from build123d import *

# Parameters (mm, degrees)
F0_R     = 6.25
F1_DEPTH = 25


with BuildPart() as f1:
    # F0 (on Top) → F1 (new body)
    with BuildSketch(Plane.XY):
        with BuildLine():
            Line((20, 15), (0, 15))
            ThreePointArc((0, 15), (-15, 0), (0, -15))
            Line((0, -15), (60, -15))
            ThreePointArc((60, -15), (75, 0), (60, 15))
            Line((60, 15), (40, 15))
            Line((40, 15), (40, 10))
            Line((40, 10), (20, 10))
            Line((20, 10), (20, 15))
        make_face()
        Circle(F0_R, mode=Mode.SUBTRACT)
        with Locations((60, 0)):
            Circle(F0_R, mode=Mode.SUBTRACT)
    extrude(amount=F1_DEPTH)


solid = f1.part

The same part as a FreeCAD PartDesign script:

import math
import FreeCAD as App
import Part
import Sketcher

V = App.Vector
Q = App.Units.Quantity

doc = App.newDocument("Part")
params = doc.addObject("Spreadsheet::Sheet", "Params")
for row, (alias, value) in enumerate([
    ("sketch1_radius", "15 mm"),
    ("sketch1_diameter", "12.5 mm"),
    ("sketch1_width", "20 mm"),
    ("sketch1_height", "5 mm"),
    ("pad1_length", "25 mm"),
], start=1):
    params.set(f"A{row}", alias)
    params.set(f"B{row}", "=" + value)
    params.setAlias(f"B{row}", alias)

body = doc.addObject("PartDesign::Body", "Body")

sketch1 = body.newObject("Sketcher::SketchObject", "Sketch")
sketch1.AttachmentSupport = (doc.getObject("XY_Plane"), [""])
sketch1.MapMode = "FlatFace"
sketch1.addGeometry([
    Part.LineSegment(V(20, 15, 0), V(0, 15, 0)),
    Part.ArcOfCircle(Part.Circle(V(0, 0, 0), V(0, 0, 1), 15), math.radians(90), math.radians(270)),
    Part.LineSegment(V(0, -15, 0), V(60, -15, 0)),
    Part.ArcOfCircle(Part.Circle(V(60, 0, 0), V(0, 0, 1), 15), math.radians(-90), math.radians(90)),
    Part.LineSegment(V(60, 15, 0), V(40, 15, 0)),
    Part.LineSegment(V(40, 15, 0), V(40, 10, 0)),
    Part.LineSegment(V(40, 10, 0), V(20, 10, 0)),
    Part.LineSegment(V(20, 10, 0), V(20, 15, 0)),
    Part.Circle(V(0, 0, 0), V(0, 0, 1), 6),
    Part.Circle(V(60, 0, 0), V(0, 0, 1), 6),
], False)
sketch1.addConstraint([
    Sketcher.Constraint("Tangent", 0, 2, 1, 1),
    Sketcher.Constraint("Tangent", 1, 2, 2, 1),
    Sketcher.Constraint("Tangent", 2, 2, 3, 1),
    Sketcher.Constraint("Tangent", 3, 2, 4, 1),
    Sketcher.Constraint("Coincident", 4, 2, 5, 1),
    Sketcher.Constraint("Coincident", 5, 2, 6, 1),
    Sketcher.Constraint("Coincident", 6, 2, 7, 1),
    Sketcher.Constraint("Coincident", 7, 2, 0, 1),
    Sketcher.Constraint("Horizontal", 0),
    Sketcher.Constraint("Horizontal", 2),
    Sketcher.Constraint("Horizontal", 4),
    Sketcher.Constraint("Vertical", 5),
    Sketcher.Constraint("Horizontal", 6),
    Sketcher.Constraint("Vertical", 7),
    Sketcher.Constraint("Coincident", 1, 3, -1, 1),
    Sketcher.Constraint("Coincident", 8, 3, -1, 1),
    Sketcher.Constraint("Coincident", 9, 3, 3, 3),
    Sketcher.Constraint("Equal", 1, 3),
    Sketcher.Constraint("Equal", 8, 9),
    Sketcher.Constraint("Equal", 0, 4),
    Sketcher.Constraint("Equal", 4, 6),
    Sketcher.Constraint("Radius", 1, Q("15 mm")),
    Sketcher.Constraint("Diameter", 8, Q("12.5 mm")),
    Sketcher.Constraint("DistanceX", 0, 2, 0, 1, Q("20 mm")),
    Sketcher.Constraint("DistanceY", 5, 2, 5, 1, Q("5 mm")),
])
sketch1.setExpression("Constraints[21]", "Params.sketch1_radius")
sketch1.setExpression("Constraints[22]", "Params.sketch1_diameter")
sketch1.setExpression("Constraints[23]", "Params.sketch1_width")
sketch1.setExpression("Constraints[24]", "Params.sketch1_height")
pad1 = body.newObject("PartDesign::Pad", "Pad")
pad1.Profile = sketch1
pad1.setExpression("Length", "Params.pad1_length")

doc.recompute()
